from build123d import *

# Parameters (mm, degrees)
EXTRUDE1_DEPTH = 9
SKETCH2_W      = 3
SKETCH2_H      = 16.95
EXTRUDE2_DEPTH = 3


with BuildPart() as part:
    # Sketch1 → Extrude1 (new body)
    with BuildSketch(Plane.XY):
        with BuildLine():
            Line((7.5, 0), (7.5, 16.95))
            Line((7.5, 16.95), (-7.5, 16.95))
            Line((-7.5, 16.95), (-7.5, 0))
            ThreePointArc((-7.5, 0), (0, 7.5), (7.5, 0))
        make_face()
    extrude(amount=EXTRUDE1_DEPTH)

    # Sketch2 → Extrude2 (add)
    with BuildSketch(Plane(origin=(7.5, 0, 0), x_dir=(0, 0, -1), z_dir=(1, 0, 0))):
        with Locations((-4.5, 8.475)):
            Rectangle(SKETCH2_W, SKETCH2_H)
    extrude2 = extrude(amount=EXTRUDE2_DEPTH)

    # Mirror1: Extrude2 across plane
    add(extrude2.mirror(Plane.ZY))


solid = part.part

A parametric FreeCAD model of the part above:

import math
import FreeCAD as App
import Part
import Sketcher

V = App.Vector
Q = App.Units.Quantity


def add_polygon(sketch, points):
    """Adds a closed chain of lines whose ends are joined by coincident constraints."""
    first, n = sketch.GeometryCount, len(points)
    for a, b in zip(points, points[1:] + points[:1]):
        sketch.addGeometry(Part.LineSegment(App.Vector(*a, 0), App.Vector(*b, 0)), False)
    for i in range(n):
        sketch.addConstraint(Sketcher.Constraint("Coincident", first + i, 2, first + (i + 1) % n, 1))

doc = App.newDocument("Part")
body = doc.addObject("PartDesign::Body", "Body")

# Sketch on XY plane
sketch1 = body.newObject("Sketcher::SketchObject", "Sketch")
sketch1.AttachmentSupport = (doc.getObject("XY_Plane"), [""])
sketch1.MapMode = "FlatFace"
sketch1.addGeometry([
    Part.LineSegment(V(8, 0, 0), V(8, 17, 0)),
    Part.LineSegment(V(8, 17, 0), V(-8, 17, 0)),
    Part.LineSegment(V(-8, 17, 0), V(-8, 0, 0)),
    Part.ArcOfCircle(Part.Circle(V(0, 0, 0), V(0, 0, 1), 8), math.radians(0), math.radians(180)),
], False)
sketch1.addConstraint([
    Sketcher.Constraint("Coincident", 0, 2, 1, 1),
    Sketcher.Constraint("Coincident", 1, 2, 2, 1),
    Sketcher.Constraint("Tangent", 2, 2, 3, 2),
    Sketcher.Constraint("Tangent", 3, 1, 0, 1),
    Sketcher.Constraint("Vertical", 0),
    Sketcher.Constraint("Horizontal", 1),
    Sketcher.Constraint("Vertical", 2),
    Sketcher.Constraint("Coincident", 3, 3, -1, 1),
    Sketcher.Constraint("Radius", 3, Q("7.5 mm")),
    Sketcher.Constraint("DistanceY", 0, 1, 0, 2, Q("16.95 mm")),
])
pad1 = body.newObject("PartDesign::Pad", "Pad")
pad1.Profile = sketch1
pad1.Length = 9

# Sketch on YZ plane
sketch2 = body.newObject("Sketcher::SketchObject", "Sketch001")
sketch2.AttachmentSupport = (doc.getObject("YZ_Plane"), [""])
sketch2.MapMode = "FlatFace"
sketch2.AttachmentOffset = App.Placement(V(0, 0, 7.5), App.Rotation())
add_polygon(sketch2, [(16.9, 6), (0, 6), (0, 3), (16.9, 3)])  # lines 0-3
sketch2.addConstraint([
    Sketcher.Constraint("Horizontal", 0),
    Sketcher.Constraint("Vertical", 1),
    Sketcher.Constraint("Horizontal", 2),
    Sketcher.Constraint("Vertical", 3),
    Sketcher.Constraint("PointOnObject", 0, 2, -2),
    Sketcher.Constraint("DistanceY", 1, 2, 1, 1, Q("3 mm")),
    Sketcher.Constraint("DistanceY", -1, 1, 0, 2, Q("6 mm")),
    Sketcher.Constraint("DistanceX", 0, 2, 0, 1, Q("16.95 mm")),
])
pad2 = body.newObject("PartDesign::Pad", "Pad001")
pad2.Profile = sketch2
pad2.Length = 3
doc.recompute()

mirrored = body.newObject("PartDesign::Mirrored", "Mirrored")
mirrored.Originals = [pad2]
mirrored.MirrorPlane = (doc.getObject("YZ_Plane"), [""])
body.Tip = mirrored

doc.recompute()
